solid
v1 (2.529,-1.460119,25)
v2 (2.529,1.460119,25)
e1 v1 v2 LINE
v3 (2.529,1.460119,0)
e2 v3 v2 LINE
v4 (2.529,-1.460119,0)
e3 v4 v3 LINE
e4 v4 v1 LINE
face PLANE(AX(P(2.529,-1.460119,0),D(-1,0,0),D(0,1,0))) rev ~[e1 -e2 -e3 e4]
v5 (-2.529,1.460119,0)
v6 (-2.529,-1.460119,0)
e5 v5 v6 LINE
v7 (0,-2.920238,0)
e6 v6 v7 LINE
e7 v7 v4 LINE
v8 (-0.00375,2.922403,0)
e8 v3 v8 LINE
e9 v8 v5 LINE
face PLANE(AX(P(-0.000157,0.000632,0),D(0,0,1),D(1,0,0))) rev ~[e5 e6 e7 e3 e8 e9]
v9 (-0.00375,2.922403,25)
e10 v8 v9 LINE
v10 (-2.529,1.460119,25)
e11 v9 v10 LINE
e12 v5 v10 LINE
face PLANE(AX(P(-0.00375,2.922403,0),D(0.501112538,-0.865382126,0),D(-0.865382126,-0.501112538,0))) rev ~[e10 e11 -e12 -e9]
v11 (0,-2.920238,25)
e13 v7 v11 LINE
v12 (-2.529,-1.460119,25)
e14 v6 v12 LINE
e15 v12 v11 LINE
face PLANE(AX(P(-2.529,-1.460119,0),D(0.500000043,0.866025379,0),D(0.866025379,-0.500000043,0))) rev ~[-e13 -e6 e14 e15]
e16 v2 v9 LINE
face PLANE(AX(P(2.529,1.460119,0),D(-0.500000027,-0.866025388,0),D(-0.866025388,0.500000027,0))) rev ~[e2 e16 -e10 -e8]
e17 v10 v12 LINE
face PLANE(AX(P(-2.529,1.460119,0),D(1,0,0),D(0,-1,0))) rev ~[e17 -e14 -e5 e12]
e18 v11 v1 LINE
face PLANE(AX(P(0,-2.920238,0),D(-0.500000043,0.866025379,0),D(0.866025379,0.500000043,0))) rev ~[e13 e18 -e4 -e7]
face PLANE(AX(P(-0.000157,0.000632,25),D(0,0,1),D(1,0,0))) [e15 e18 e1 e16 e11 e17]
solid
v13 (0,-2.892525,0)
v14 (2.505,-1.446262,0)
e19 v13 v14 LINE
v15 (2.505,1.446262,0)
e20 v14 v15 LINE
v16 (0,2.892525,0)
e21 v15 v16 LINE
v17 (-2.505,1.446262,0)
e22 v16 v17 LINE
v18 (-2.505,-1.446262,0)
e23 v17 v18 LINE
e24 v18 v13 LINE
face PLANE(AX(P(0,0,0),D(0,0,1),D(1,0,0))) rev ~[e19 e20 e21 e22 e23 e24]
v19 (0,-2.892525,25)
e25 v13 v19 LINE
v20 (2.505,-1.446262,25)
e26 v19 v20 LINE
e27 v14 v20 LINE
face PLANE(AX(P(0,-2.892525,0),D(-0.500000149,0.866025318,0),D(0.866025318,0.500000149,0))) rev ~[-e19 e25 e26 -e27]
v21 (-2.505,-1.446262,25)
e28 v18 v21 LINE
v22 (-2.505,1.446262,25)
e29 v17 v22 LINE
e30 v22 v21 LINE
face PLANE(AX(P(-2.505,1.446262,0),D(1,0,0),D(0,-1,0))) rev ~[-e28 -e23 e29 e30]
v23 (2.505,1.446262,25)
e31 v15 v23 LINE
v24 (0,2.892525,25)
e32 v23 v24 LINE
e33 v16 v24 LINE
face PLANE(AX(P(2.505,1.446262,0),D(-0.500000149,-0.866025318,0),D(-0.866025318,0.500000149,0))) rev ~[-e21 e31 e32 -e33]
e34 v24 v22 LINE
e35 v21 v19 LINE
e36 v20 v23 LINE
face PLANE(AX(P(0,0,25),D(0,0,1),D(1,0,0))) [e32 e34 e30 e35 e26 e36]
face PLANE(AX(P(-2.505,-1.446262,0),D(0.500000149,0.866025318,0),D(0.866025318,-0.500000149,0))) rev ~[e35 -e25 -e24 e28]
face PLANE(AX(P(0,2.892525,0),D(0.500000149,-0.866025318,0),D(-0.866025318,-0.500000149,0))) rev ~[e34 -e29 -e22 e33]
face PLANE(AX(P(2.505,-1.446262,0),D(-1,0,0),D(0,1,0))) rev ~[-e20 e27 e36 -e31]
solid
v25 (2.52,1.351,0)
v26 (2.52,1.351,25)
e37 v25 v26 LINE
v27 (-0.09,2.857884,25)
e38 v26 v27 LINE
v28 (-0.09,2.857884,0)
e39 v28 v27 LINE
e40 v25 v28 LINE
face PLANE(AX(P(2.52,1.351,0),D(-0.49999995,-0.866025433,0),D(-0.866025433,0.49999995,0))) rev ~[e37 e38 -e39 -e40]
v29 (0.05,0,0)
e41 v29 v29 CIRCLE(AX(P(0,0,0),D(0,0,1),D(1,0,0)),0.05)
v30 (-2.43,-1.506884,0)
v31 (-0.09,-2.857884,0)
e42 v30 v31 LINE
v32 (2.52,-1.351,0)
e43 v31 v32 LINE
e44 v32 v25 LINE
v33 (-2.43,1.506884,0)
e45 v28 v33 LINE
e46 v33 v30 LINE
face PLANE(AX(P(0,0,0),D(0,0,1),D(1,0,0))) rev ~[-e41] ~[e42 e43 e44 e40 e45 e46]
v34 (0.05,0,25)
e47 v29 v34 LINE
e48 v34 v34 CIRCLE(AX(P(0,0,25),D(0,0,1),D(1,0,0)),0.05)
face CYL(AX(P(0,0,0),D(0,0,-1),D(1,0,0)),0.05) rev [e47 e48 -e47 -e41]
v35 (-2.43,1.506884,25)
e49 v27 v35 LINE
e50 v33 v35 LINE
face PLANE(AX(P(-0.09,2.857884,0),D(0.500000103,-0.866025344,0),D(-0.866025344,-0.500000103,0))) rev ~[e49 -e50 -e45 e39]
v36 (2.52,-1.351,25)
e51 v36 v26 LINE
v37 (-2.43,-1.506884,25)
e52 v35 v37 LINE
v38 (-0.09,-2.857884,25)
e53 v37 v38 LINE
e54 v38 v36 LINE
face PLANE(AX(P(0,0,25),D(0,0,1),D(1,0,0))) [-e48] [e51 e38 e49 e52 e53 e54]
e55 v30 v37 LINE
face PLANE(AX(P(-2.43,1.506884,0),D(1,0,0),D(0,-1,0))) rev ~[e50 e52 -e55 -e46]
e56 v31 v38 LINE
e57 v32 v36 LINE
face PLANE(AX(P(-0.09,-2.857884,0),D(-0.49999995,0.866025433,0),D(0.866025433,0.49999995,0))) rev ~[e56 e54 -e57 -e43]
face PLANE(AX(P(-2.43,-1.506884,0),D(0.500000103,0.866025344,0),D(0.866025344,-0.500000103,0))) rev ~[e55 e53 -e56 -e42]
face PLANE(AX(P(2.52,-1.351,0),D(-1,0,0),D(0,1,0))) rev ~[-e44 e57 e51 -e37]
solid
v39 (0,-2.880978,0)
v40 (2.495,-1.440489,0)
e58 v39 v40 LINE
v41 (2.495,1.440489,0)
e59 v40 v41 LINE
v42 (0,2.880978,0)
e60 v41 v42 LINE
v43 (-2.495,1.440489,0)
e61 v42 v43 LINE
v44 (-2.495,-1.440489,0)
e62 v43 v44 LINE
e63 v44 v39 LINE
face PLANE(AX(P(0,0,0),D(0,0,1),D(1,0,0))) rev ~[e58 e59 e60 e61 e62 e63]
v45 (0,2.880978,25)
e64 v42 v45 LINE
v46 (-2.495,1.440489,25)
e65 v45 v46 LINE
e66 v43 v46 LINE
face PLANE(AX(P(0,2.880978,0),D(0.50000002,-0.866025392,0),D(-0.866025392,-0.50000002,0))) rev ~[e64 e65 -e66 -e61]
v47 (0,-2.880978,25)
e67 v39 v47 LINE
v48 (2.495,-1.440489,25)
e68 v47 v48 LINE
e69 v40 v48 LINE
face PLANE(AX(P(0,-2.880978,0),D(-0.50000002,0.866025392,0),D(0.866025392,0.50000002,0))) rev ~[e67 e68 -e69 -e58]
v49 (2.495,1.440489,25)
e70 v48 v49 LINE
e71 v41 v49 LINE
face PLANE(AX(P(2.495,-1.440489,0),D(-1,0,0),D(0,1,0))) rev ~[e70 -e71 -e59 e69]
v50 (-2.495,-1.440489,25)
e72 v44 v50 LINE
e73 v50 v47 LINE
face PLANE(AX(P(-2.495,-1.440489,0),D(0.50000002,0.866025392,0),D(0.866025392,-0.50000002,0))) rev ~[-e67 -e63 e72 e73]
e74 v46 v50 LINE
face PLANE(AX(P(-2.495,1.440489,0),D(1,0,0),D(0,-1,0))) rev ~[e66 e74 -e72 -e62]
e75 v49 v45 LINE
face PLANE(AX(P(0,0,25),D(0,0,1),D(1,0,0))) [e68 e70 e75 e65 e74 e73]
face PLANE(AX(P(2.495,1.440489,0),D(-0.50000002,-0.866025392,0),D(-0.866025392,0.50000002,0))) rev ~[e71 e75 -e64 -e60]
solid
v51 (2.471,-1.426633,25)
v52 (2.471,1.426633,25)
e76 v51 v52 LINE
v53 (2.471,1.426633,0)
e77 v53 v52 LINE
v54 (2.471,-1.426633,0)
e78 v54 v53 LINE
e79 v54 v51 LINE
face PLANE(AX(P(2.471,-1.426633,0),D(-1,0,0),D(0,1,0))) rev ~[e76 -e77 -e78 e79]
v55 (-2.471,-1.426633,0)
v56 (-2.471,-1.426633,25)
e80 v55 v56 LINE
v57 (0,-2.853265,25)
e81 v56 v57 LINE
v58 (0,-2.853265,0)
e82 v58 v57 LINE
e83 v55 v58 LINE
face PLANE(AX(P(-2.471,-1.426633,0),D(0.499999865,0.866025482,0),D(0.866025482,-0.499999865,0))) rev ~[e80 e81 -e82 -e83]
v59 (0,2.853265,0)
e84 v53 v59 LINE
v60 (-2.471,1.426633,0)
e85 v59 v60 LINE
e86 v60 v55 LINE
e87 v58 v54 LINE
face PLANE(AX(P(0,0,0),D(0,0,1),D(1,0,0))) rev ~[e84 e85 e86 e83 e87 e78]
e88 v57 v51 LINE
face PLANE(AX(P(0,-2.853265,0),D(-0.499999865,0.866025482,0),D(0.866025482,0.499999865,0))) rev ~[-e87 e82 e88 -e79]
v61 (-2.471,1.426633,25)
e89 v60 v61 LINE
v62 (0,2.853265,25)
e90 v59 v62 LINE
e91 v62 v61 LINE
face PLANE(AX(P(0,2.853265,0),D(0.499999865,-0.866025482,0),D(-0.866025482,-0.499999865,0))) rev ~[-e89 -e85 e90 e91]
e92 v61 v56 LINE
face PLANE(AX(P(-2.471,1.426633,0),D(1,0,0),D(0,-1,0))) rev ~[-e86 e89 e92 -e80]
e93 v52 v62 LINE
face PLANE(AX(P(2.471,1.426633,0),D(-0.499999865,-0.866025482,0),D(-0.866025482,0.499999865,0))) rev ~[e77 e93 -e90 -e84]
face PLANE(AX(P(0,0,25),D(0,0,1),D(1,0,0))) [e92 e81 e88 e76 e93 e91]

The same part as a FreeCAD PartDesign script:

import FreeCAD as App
import Part
import Sketcher
Q = App.Units.Quantity


def add_polygon(sketch, points):
    """Adds a closed chain of lines whose ends are joined by coincident constraints."""
    first, n = sketch.GeometryCount, len(points)
    for a, b in zip(points, points[1:] + points[:1]):
        sketch.addGeometry(Part.LineSegment(App.Vector(*a, 0), App.Vector(*b, 0)), False)
    for i in range(n):
        sketch.addConstraint(Sketcher.Constraint("Coincident", first + i, 2, first + (i + 1) % n, 1))

doc = App.newDocument("Part")
body = doc.addObject("PartDesign::Body", "Body")

# Sketch on XY plane
sketch1 = doc.addObject("Sketcher::SketchObject", "Sketch")
body.addObject(sketch1)
sketch1.AttachmentSupport = (doc.XY_Plane, [""])
sketch1.MapMode = "FlatFace"
add_polygon(sketch1, [(2.5, -1.5), (2.5, 1.5), (0, 2.9), (-2.5, 1.5), (-2.5, -1.5), (0, -2.9)])  # lines 0-5
sketch1.addConstraint([
    Sketcher.Constraint("Vertical", 0),
    Sketcher.Constraint("Vertical", 3),
    Sketcher.Constraint("Symmetric", 0, 2, 3, 2, -1, 1),
    Sketcher.Constraint("PointOnObject", 4, 2, -2),
    Sketcher.Constraint("Parallel", 1, 4),
    Sketcher.Constraint("Horizontal", 0, 2, 2, 2),
    Sketcher.Constraint("Horizontal", 3, 2, 5, 2),
    Sketcher.Constraint("Angle", 1, Q("149.999998 deg")),
    Sketcher.Constraint("DistanceX", -1, 1, 0, 2, 2.529),
    Sketcher.Constraint("DistanceY", 0, 1, 0, 2, 2.920238),
    Sketcher.Constraint("DistanceX", 1, 2, -1, 1, 0.00375),
])
pad1 = doc.addObject("PartDesign::Pad", "Pad")
body.addObject(pad1)
pad1.Profile = sketch1
pad1.Length = 25
body2 = doc.addObject("PartDesign::Body", "Body001")

# Sketch on XY plane
sketch2 = doc.addObject("Sketcher::SketchObject", "Sketch001")
body2.addObject(sketch2)
sketch2.AttachmentSupport = (doc.getObject("XY_Plane001"), [""])
sketch2.MapMode = "FlatFace"
add_polygon(sketch2, [(2.5, -1.4), (2.5, 1.4), (0, 2.9), (-2.5, 1.4), (-2.5, -1.4), (0, -2.9)])  # lines 0-5
sketch2.addConstraint([
    Sketcher.Constraint("Vertical", 0),
    Sketcher.Constraint("Vertical", 3),
    Sketcher.Constraint("Symmetric", 0, 2, 3, 2, -1, 1),
    Sketcher.Constraint("Symmetric", 1, 2, 4, 2, -1, 1),
    Sketcher.Constraint("PointOnObject", 1, 2, -2),
    Sketcher.Constraint("Parallel", 2, 5),
    Sketcher.Constraint("Horizontal", 0, 2, 2, 2),
    Sketcher.Constraint("Angle", 1, Q("149.99999 deg")),
    Sketcher.Constraint("DistanceX", 2, 2, 0, 2, 5.01),
    Sketcher.Constraint("DistanceY", 0, 1, 0, 2, 2.892524),
])
pad2 = doc.addObject("PartDesign::Pad", "Pad001")
body2.addObject(pad2)
pad2.Profile = sketch2
pad2.Length = 25
body3 = doc.addObject("PartDesign::Body", "Body002")

# Sketch on XY plane
sketch3 = doc.addObject("Sketcher::SketchObject", "Sketch002")
body3.addObject(sketch3)
sketch3.AttachmentSupport = (doc.getObject("XY_Plane002"), [""])
sketch3.MapMode = "FlatFace"
add_polygon(sketch3, [(2.5, -1.4), (2.5, 1.4), (0, 2.9), (-2.5, 1.4), (-2.5, -1.4), (0, -2.9)])  # lines 0-5
sketch3.addConstraint([
    Sketcher.Constraint("Vertical", 0),
    Sketcher.Constraint("Vertical", 3),
    Sketcher.Constraint("Symmetric", 0, 2, 3, 2, -1, 1),
    Sketcher.Constraint("Symmetric", 1, 2, 4, 2, -1, 1),
    Sketcher.Constraint("PointOnObject", 1, 2, -2),
    Sketcher.Constraint("Parallel", 2, 5),
    Sketcher.Constraint("Horizontal", 0, 2, 2, 2),
    Sketcher.Constraint("Angle", 1, Q("150.000009 deg")),
    Sketcher.Constraint("DistanceX", -1, 1, 0, 2, 2.471),
    Sketcher.Constraint("DistanceY", 3, 2, 1, 2, 4.279898),
])
pad3 = doc.addObject("PartDesign::Pad", "Pad002")
body3.addObject(pad3)
pad3.Profile = sketch3
pad3.Length = 25
body4 = doc.addObject("PartDesign::Body", "Body003")

# Sketch on XY plane
sketch4 = doc.addObject("Sketcher::SketchObject", "Sketch003")
body4.addObject(sketch4)
sketch4.AttachmentSupport = (doc.getObject("XY_Plane003"), [""])
sketch4.MapMode = "FlatFace"
add_polygon(sketch4, [(2.5, -1.4), (2.5, 1.4), (0, 2.9), (-2.5, 1.4), (-2.5, -1.4), (0, -2.9)])  # lines 0-5
sketch4.addConstraint([
    Sketcher.Constraint("Vertical", 0),
    Sketcher.Constraint("Vertical", 3),
    Sketcher.Constraint("Symmetric", 0, 2, 3, 2, -1, 1),
    Sketcher.Constraint("Symmetric", 1, 2, 4, 2, -1, 1),
    Sketcher.Constraint("PointOnObject", 1, 2, -2),
    Sketcher.Constraint("Parallel", 2, 5),
    Sketcher.Constraint("Horizontal", 0, 2, 2, 2),
    Sketcher.Constraint("Angle", 1, Q("149.999999 deg")),
    Sketcher.Constraint("DistanceX", 2, 2, 0, 2, 4.99),
    Sketcher.Constraint("DistanceY", 0, 1, 0, 2, 2.880978),
])
pad4 = doc.addObject("PartDesign::Pad", "Pad003")
body4.addObject(pad4)
pad4.Profile = sketch4
pad4.Length = 25
body5 = doc.addObject("PartDesign::Body", "Body004")

# Sketch on XY plane
sketch5 = doc.addObject("Sketcher::SketchObject", "Sketch004")
body5.addObject(sketch5)
sketch5.AttachmentSupport = (doc.getObject("XY_Plane004"), [""])
sketch5.MapMode = "FlatFace"
add_polygon(sketch5, [(2.52, 1.35), (-0.09, 2.86), (-2.43, 1.51), (-2.43, -1.51), (-0.09, -2.86), (2.52, -1.35)])  # lines 0-5
sketch5.addGeometry(Part.Circle(App.Vector(0, 0, 0), App.Vector(0, 0, 1), 0.05), False)  # 6
sketch5.addConstraint([
    Sketcher.Constraint("Vertical", 2),
    Sketcher.Constraint("Vertical", 5),
    Sketcher.Constraint("Coincident", 6, 3, -1, 1),
    Sketcher.Constraint("Symmetric", 0, 2, 3, 2, -1),
    Sketcher.Constraint("Parallel", 0, 3),
    Sketcher.Constraint("Parallel", 1, 4),
    Sketcher.Constraint("Equal", 1, 3),
    Sketcher.Constraint("Diameter", 6, 0.1),
    Sketcher.Constraint("Angle", 0, Q("150.000003 deg")),
    Sketcher.Constraint("DistanceY", 5, 1, 5, 2, 2.702),
    Sketcher.Constraint("DistanceX", 0, 2, -1, 1, 0.09),
    Sketcher.Constraint("DistanceX", 1, 2, -1, 1, 2.43),
    Sketcher.Constraint("DistanceX", -1, 1, 4, 2, 2.52),
])
pad5 = doc.addObject("PartDesign::Pad", "Pad004")
body5.addObject(pad5)
pad5.Profile = sketch5
pad5.Length = 25

doc.recompute()
